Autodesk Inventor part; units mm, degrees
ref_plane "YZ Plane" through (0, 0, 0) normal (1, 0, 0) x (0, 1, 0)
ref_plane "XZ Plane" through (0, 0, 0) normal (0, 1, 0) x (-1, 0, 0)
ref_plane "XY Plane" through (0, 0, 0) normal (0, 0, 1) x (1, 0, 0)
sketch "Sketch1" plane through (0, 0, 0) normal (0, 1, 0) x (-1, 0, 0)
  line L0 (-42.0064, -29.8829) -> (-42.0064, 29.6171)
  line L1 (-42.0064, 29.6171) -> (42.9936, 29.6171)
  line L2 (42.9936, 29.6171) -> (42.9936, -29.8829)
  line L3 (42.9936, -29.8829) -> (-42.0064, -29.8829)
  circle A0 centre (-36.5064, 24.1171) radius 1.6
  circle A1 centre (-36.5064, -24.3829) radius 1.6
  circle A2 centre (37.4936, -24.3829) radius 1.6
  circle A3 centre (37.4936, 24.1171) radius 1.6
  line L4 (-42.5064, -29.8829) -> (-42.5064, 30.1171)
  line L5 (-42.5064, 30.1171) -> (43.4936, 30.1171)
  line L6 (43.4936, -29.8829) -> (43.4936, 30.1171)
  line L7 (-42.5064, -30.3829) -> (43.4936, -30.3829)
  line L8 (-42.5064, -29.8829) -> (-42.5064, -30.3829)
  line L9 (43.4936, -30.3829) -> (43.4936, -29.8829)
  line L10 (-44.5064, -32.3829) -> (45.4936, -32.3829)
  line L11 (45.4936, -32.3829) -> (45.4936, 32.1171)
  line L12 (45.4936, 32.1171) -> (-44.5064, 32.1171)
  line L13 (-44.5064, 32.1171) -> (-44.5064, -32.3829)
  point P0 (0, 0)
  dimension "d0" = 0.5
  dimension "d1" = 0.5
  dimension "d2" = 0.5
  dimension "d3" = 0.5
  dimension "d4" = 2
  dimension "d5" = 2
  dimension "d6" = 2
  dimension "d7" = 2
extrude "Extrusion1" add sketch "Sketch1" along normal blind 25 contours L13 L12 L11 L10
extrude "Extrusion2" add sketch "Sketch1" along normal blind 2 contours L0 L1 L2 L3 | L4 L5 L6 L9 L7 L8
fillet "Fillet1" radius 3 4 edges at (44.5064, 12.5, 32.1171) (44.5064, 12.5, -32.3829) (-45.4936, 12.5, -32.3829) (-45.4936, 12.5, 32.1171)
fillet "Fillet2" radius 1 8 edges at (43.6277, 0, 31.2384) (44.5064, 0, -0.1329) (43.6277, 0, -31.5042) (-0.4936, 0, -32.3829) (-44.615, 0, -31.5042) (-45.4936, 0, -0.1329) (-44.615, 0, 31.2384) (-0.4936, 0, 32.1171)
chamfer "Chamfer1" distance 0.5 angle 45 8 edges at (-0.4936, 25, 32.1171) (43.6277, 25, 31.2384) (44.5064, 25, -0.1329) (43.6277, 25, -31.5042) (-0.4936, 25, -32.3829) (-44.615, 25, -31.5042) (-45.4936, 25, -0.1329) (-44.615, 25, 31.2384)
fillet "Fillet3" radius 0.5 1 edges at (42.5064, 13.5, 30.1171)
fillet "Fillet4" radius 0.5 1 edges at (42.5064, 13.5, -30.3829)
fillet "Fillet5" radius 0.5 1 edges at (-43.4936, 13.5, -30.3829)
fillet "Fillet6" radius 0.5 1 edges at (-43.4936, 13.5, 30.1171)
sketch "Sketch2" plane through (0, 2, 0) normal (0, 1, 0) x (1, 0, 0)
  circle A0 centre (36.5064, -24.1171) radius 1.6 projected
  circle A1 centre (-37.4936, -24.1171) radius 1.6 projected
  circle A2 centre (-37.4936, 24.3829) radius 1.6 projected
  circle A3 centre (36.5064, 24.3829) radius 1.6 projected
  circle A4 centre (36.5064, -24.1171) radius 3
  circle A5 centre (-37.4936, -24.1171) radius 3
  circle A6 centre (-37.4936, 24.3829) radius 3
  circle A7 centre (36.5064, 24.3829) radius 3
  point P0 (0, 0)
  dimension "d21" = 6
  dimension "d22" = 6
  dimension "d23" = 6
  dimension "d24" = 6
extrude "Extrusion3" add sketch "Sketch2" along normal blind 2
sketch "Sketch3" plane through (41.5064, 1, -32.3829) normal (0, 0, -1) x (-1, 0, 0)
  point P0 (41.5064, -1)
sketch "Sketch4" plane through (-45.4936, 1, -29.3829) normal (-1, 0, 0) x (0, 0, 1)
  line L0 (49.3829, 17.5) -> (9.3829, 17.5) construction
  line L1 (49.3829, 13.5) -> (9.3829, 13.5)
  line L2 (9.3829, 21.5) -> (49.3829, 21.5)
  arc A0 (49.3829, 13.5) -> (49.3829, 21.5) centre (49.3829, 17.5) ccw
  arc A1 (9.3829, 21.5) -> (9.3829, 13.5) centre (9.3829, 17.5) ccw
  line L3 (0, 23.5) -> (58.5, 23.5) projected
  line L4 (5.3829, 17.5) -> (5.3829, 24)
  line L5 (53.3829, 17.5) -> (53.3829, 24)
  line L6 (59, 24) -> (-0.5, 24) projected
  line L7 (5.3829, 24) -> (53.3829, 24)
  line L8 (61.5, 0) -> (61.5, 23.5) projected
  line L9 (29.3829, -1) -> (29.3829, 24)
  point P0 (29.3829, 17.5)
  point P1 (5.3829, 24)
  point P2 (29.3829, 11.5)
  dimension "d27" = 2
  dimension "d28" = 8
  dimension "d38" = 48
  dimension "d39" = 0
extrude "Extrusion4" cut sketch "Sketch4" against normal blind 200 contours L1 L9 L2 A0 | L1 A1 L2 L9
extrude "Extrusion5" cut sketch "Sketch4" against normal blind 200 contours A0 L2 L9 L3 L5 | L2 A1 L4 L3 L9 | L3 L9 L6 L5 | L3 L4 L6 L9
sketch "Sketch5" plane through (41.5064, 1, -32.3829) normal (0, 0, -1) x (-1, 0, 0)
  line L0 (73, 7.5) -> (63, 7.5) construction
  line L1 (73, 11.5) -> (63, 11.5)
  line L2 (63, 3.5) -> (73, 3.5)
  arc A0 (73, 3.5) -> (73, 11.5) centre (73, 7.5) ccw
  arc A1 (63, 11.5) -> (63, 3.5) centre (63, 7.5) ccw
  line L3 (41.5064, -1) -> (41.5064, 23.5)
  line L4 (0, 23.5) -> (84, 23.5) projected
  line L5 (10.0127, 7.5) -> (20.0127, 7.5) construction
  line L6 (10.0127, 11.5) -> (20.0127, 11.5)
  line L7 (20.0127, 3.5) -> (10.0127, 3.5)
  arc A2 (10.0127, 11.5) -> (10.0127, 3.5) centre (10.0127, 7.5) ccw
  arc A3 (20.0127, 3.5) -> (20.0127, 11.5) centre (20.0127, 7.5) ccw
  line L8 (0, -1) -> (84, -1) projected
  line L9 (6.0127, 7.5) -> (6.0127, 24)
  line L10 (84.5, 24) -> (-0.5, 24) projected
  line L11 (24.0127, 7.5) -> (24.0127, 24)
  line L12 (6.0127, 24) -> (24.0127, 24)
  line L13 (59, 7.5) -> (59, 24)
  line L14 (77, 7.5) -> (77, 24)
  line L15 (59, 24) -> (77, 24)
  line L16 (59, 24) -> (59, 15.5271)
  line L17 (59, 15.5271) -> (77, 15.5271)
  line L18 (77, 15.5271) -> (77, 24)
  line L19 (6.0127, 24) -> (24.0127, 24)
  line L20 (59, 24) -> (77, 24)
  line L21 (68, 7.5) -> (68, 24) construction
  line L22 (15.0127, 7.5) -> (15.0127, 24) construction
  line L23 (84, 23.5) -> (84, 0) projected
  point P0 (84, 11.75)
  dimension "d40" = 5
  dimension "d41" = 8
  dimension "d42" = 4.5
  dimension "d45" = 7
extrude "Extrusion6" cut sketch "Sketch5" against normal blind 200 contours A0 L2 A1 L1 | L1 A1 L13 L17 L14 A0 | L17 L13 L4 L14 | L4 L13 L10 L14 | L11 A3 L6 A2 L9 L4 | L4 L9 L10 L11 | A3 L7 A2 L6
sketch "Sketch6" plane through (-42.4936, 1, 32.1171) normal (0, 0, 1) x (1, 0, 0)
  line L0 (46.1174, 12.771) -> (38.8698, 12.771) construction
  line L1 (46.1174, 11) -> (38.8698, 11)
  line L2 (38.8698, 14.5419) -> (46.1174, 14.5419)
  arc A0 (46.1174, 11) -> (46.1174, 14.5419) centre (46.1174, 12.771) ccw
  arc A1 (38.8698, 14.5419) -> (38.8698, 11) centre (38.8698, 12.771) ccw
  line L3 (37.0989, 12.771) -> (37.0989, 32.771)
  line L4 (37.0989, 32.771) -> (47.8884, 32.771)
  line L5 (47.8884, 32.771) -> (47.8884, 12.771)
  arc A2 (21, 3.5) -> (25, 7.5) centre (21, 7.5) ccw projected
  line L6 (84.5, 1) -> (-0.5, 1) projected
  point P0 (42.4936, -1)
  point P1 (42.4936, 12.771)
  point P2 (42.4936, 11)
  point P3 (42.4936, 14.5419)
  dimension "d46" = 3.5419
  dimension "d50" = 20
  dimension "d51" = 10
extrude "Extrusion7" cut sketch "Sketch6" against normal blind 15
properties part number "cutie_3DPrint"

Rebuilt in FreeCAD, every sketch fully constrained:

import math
import FreeCAD as App
import Part
import Sketcher

V = App.Vector


def edges_at(feature, points):
    """Names of the edges that pass closest to the given points."""
    edges = feature.Shape.Edges
    near = lambda p: min(range(len(edges)), key=lambda i: edges[i].distToShape(Part.Vertex(*p))[0])
    return sorted({f"Edge{near(p) + 1}" for p in points})


def add_polygon(sketch, points):
    """Adds a closed chain of lines whose ends are joined by coincident constraints."""
    first, n = sketch.GeometryCount, len(points)
    for a, b in zip(points, points[1:] + points[:1]):
        sketch.addGeometry(Part.LineSegment(App.Vector(*a, 0), App.Vector(*b, 0)), False)
    for i in range(n):
        sketch.addConstraint(Sketcher.Constraint("Coincident", first + i, 2, first + (i + 1) % n, 1))

doc = App.newDocument("Part")
body = doc.addObject("PartDesign::Body", "Body")

# Sketch on XZ plane
sketch1 = body.newObject("Sketcher::SketchObject", "Sketch")
sketch1.AttachmentSupport = (doc.getObject("XZ_Plane"), [""])
sketch1.MapMode = "FlatFace"
add_polygon(sketch1, [(45, 32), (45, -32), (-45, -32), (-45, 32)])  # lines 0-3
add_polygon(sketch1, [(43, -30), (43, 30), (-43, 30), (-43, -30)])  # lines 4-7
sketch1.addConstraint(Sketcher.Constraint("Vertical", 0))
sketch1.addConstraint(Sketcher.Constraint("Horizontal", 1))
sketch1.addConstraint(Sketcher.Constraint("Vertical", 2))
sketch1.addConstraint(Sketcher.Constraint("Horizontal", 3))
sketch1.addConstraint(Sketcher.Constraint("Vertical", 4))
sketch1.addConstraint(Sketcher.Constraint("Horizontal", 5))
sketch1.addConstraint(Sketcher.Constraint("Vertical", 6))
sketch1.addConstraint(Sketcher.Constraint("Horizontal", 7))
sketch1.addConstraint(Sketcher.Constraint("DistanceX", 4, 2, 3, 2, 2.0))
sketch1.addConstraint(Sketcher.Constraint("DistanceY", 4, 2, 3, 2, 2.0))
sketch1.addConstraint(Sketcher.Constraint("DistanceX", 2, 2, 5, 2, 2.0))
sketch1.addConstraint(Sketcher.Constraint("DistanceY", 1, 2, 6, 2, 2.0))
sketch1.addConstraint(Sketcher.Constraint("DistanceX", 1, 2, 1, 1, 90.0))
sketch1.addConstraint(Sketcher.Constraint("DistanceY", 0, 2, 0, 1, 64.5))
sketch1.addConstraint(Sketcher.Constraint("DistanceY", 0, 2, -1, 1, 32.383))
sketch1.addConstraint(Sketcher.Constraint("DistanceX", -1, 1, 0, 2, 44.5064))
pad1 = body.newObject("PartDesign::Pad", "Pad")
pad1.Profile = sketch1
pad1.Length = 25
pad1.Reversed = True

# Sketch on XZ plane
sketch2 = body.newObject("Sketcher::SketchObject", "Sketch001")
sketch2.AttachmentSupport = (doc.getObject("XZ_Plane"), [""])
sketch2.MapMode = "FlatFace"
add_polygon(sketch2, [(42.5, 30.1), (42.5, -30.4), (-43.5, -30.4), (-43.5, 30.1)])  # lines 0-3
sketch2.addGeometry(Part.Circle(V(36.5, -24.4, 0), V(0, 0, 1), 1.6), False)  # 4
sketch2.addGeometry(Part.Circle(V(-37.5, -24.4, 0), V(0, 0, 1), 1.6), False)  # 5
sketch2.addGeometry(Part.Circle(V(36.5, 24.1, 0), V(0, 0, 1), 1.6), False)  # 6
sketch2.addGeometry(Part.Circle(V(-37.5, 24.1, 0), V(0, 0, 1), 1.6), False)  # 7
sketch2.addConstraint(Sketcher.Constraint("Vertical", 0))
sketch2.addConstraint(Sketcher.Constraint("Horizontal", 1))
sketch2.addConstraint(Sketcher.Constraint("Vertical", 2))
sketch2.addConstraint(Sketcher.Constraint("Horizontal", 3))
sketch2.addConstraint(Sketcher.Constraint("Equal", 4, 5))
sketch2.addConstraint(Sketcher.Constraint("Equal", 5, 6))
sketch2.addConstraint(Sketcher.Constraint("Equal", 6, 7))
sketch2.addConstraint(Sketcher.Constraint("Horizontal", 4, 3, 5, 3))
sketch2.addConstraint(Sketcher.Constraint("Horizontal", 6, 3, 7, 3))
sketch2.addConstraint(Sketcher.Constraint("Vertical", 4, 3, 6, 3))
sketch2.addConstraint(Sketcher.Constraint("Vertical", 5, 3, 7, 3))
sketch2.addConstraint(Sketcher.Constraint("Diameter", 4, 3.2))
sketch2.addConstraint(Sketcher.Constraint("DistanceX", 1, 2, 1, 1, 86.0))
sketch2.addConstraint(Sketcher.Constraint("DistanceY", 0, 2, 0, 1, 60.5))
sketch2.addConstraint(Sketcher.Constraint("DistanceX", 5, 3, 4, 3, 74.0))
sketch2.addConstraint(Sketcher.Constraint("DistanceX", 4, 3, 0, 2, 6.0))
sketch2.addConstraint(Sketcher.Constraint("DistanceY", 0, 2, 4, 3, 6.0))
sketch2.addConstraint(Sketcher.Constraint("DistanceY", 7, 3, 2, 2, 6.0))
sketch2.addConstraint(Sketcher.Constraint("DistanceY", 4, 3, -1, 1, 24.383))
sketch2.addConstraint(Sketcher.Constraint("DistanceX", -1, 1, 4, 3, 36.5064))
pad2 = body.newObject("PartDesign::Pad", "Pad001")
pad2.Profile = sketch2
pad2.Length = 2
pad2.Reversed = True
doc.recompute()

fillet = body.newObject("PartDesign::Fillet", "Fillet")
fillet.Base = (pad2, edges_at(pad2, [
    (44.506, 12.5, 32.117),
    (44.506, 12.5, -32.383),
    (-45.494, 12.5, -32.383),
    (-45.494, 12.5, 32.117),
]))
fillet.Radius = 3
doc.recompute()

fillet2 = body.newObject("PartDesign::Fillet", "Fillet001")
fillet2.Base = (fillet, edges_at(fillet, [
    (43.628, 0, 31.238),
    (44.506, 0, -0.133),
    (43.628, 0, -31.504),
    (-0.494, 0, -32.383),
    (-44.615, 0, -31.504),
    (-45.494, 0, -0.133),
    (-44.615, 0, 31.238),
    (-0.494, 0, 32.117),
]))
fillet2.Radius = 1
doc.recompute()

chamfer = body.newObject("PartDesign::Chamfer", "Chamfer")
chamfer.Base = (fillet2, edges_at(fillet2, [
    (-0.494, 25, 32.117),
    (43.628, 25, 31.238),
    (44.506, 25, -0.133),
    (43.628, 25, -31.504),
    (-0.494, 25, -32.383),
    (-44.615, 25, -31.504),
    (-45.494, 25, -0.133),
    (-44.615, 25, 31.238),
]))
chamfer.Size = 0.5
doc.recompute()

fillet3 = body.newObject("PartDesign::Fillet", "Fillet002")
fillet3.Base = (chamfer, edges_at(chamfer, [(42.506, 13.5, 30.117)]))
fillet3.Radius = 0.5
doc.recompute()

fillet4 = body.newObject("PartDesign::Fillet", "Fillet003")
fillet4.Base = (fillet3, edges_at(fillet3, [(42.506, 13.5, -30.383)]))
fillet4.Radius = 0.5
doc.recompute()

fillet5 = body.newObject("PartDesign::Fillet", "Fillet004")
fillet5.Base = (fillet4, edges_at(fillet4, [(-43.494, 13.5, -30.383)]))
fillet5.Radius = 0.5
doc.recompute()

fillet6 = body.newObject("PartDesign::Fillet", "Fillet005")
fillet6.Base = (fillet5, edges_at(fillet5, [(-43.494, 13.5, 30.117)]))
fillet6.Radius = 0.5

# Sketch on XZ plane
sketch3 = body.newObject("Sketcher::SketchObject", "Sketch002")
sketch3.AttachmentSupport = (doc.getObject("XZ_Plane"), [""])
sketch3.MapMode = "FlatFace"
sketch3.AttachmentOffset = App.Placement(V(0, 0, -2), App.Rotation())
sketch3.addGeometry(Part.Circle(V(36.5, 24.1, 0), V(0, 0, 1), 3), False)
sketch3.addGeometry(Part.Circle(V(36.5, 24.1, 0), V(0, 0, 1), 1.6), False)
sketch3.addGeometry(Part.Circle(V(-37.5, 24.1, 0), V(0, 0, 1), 3), False)
sketch3.addGeometry(Part.Circle(V(-37.5, 24.1, 0), V(0, 0, 1), 1.6), False)
sketch3.addGeometry(Part.Circle(V(-37.5, -24.4, 0), V(0, 0, 1), 3), False)
sketch3.addGeometry(Part.Circle(V(-37.5, -24.4, 0), V(0, 0, 1), 1.6), False)
sketch3.addGeometry(Part.Circle(V(36.5, -24.4, 0), V(0, 0, 1), 3), False)
sketch3.addGeometry(Part.Circle(V(36.5, -24.4, 0), V(0, 0, 1), 1.6), False)
sketch3.addConstraint(Sketcher.Constraint("Coincident", 1, 3, 0, 3))
sketch3.addConstraint(Sketcher.Constraint("Coincident", 3, 3, 2, 3))
sketch3.addConstraint(Sketcher.Constraint("Coincident", 5, 3, 4, 3))
sketch3.addConstraint(Sketcher.Constraint("Coincident", 7, 3, 6, 3))
sketch3.addConstraint(Sketcher.Constraint("Equal", 0, 2))
sketch3.addConstraint(Sketcher.Constraint("Equal", 1, 3))
sketch3.addConstraint(Sketcher.Constraint("Equal", 2, 4))
sketch3.addConstraint(Sketcher.Constraint("Equal", 3, 5))
sketch3.addConstraint(Sketcher.Constraint("Equal", 4, 6))
sketch3.addConstraint(Sketcher.Constraint("Equal", 5, 7))
sketch3.addConstraint(Sketcher.Constraint("Horizontal", 1, 3, 2, 3))
sketch3.addConstraint(Sketcher.Constraint("Horizontal", 5, 3, 6, 3))
sketch3.addConstraint(Sketcher.Constraint("Vertical", 3, 3, 4, 3))
sketch3.addConstraint(Sketcher.Constraint("Vertical", 1, 3, 6, 3))
sketch3.addConstraint(Sketcher.Constraint("Diameter", 0, 6.0))
sketch3.addConstraint(Sketcher.Constraint("Diameter", 1, 3.2))
sketch3.addConstraint(Sketcher.Constraint("DistanceX", 2, 3, 0, 3, 74.0))
sketch3.addConstraint(Sketcher.Constraint("DistanceY", 4, 3, 2, 3, 48.5))
sketch3.addConstraint(Sketcher.Constraint("DistanceY", -1, 1, 0, 3, 24.117))
sketch3.addConstraint(Sketcher.Constraint("DistanceX", -1, 1, 0, 3, 36.5064))
pad3 = body.newObject("PartDesign::Pad", "Pad002")
pad3.Profile = sketch3
pad3.Length = 2
pad3.Reversed = True

# Sketch on YZ plane
sketch4 = body.newObject("Sketcher::SketchObject", "Sketch003")
sketch4.AttachmentSupport = (doc.getObject("YZ_Plane"), [""])
sketch4.MapMode = "FlatFace"
sketch4.AttachmentOffset = App.Placement(V(0, 0, -45.4936), App.Rotation())
sketch4.addGeometry(Part.ArcOfCircle(Part.Circle(V(18.5, 20, 0), V(0, 0, 1), 4), math.radians(0), math.radians(180)), False)
sketch4.addGeometry(Part.LineSegment(V(22.5, 20, 0), V(22.5, -20, 0)), False)
sketch4.addGeometry(Part.ArcOfCircle(Part.Circle(V(18.5, -20, 0), V(0, 0, 1), 4), math.radians(180), math.radians(360)), False)
sketch4.addGeometry(Part.LineSegment(V(14.5, -20, 0), V(14.5, 20, 0)), False)
sketch4.addConstraint(Sketcher.Constraint("Tangent", 0, 1, 1, 1))
sketch4.addConstraint(Sketcher.Constraint("Tangent", 1, 2, 2, 2))
sketch4.addConstraint(Sketcher.Constraint("Tangent", 2, 1, 3, 1))
sketch4.addConstraint(Sketcher.Constraint("Tangent", 3, 2, 0, 2))
sketch4.addConstraint(Sketcher.Constraint("Vertical", 1))
sketch4.addConstraint(Sketcher.Constraint("Vertical", 3))
sketch4.addConstraint(Sketcher.Constraint("Radius", 0, 4.0))
sketch4.addConstraint(Sketcher.Constraint("DistanceY", 1, 2, 1, 1, 40.0))
sketch4.addConstraint(Sketcher.Constraint("DistanceY", -1, 1, 0, 3, 20.0))
sketch4.addConstraint(Sketcher.Constraint("DistanceX", -1, 1, 0, 3, 18.5))
pocket1 = body.newObject("PartDesign::Pocket", "Pocket")
pocket1.Profile = sketch4
pocket1.Length = 200
pocket1.Reversed = True

# Sketch on YZ plane
sketch5 = body.newObject("Sketcher::SketchObject", "Sketch004")
sketch5.AttachmentSupport = (doc.getObject("YZ_Plane"), [""])
sketch5.MapMode = "FlatFace"
sketch5.AttachmentOffset = App.Placement(V(0, 0, -45.4936), App.Rotation())
sketch5.addGeometry(Part.ArcOfCircle(Part.Circle(V(18.5, 20, 0), V(0, 0, 1), 4), math.radians(0), math.radians(90)), False)
sketch5.addGeometry(Part.LineSegment(V(18.5, 24, 0), V(25, 24, 0)), False)
sketch5.addGeometry(Part.LineSegment(V(25, 24, 0), V(25, -24, 0)), False)
sketch5.addGeometry(Part.LineSegment(V(25, -24, 0), V(18.5, -24, 0)), False)
sketch5.addGeometry(Part.ArcOfCircle(Part.Circle(V(18.5, -20, 0), V(0, 0, 1), 4), math.radians(-90), math.radians(0)), False)
sketch5.addGeometry(Part.LineSegment(V(22.5, -20, 0), V(22.5, 20, 0)), False)
sketch5.addConstraint(Sketcher.Constraint("Tangent", 0, 2, 1, 1))
sketch5.addConstraint(Sketcher.Constraint("Coincident", 1, 2, 2, 1))
sketch5.addConstraint(Sketcher.Constraint("Coincident", 2, 2, 3, 1))
sketch5.addConstraint(Sketcher.Constraint("Tangent", 3, 2, 4, 1))
sketch5.addConstraint(Sketcher.Constraint("Tangent", 4, 2, 5, 1))
sketch5.addConstraint(Sketcher.Constraint("Tangent", 5, 2, 0, 1))
sketch5.addConstraint(Sketcher.Constraint("Horizontal", 1))
sketch5.addConstraint(Sketcher.Constraint("Vertical", 2))
sketch5.addConstraint(Sketcher.Constraint("Horizontal", 3))
sketch5.addConstraint(Sketcher.Constraint("Vertical", 5))
sketch5.addConstraint(Sketcher.Constraint("Equal", 0, 4))
sketch5.addConstraint(Sketcher.Constraint("Radius", 0, 4.0))
sketch5.addConstraint(Sketcher.Constraint("DistanceY", 2, 2, 2, 1, 48.0))
sketch5.addConstraint(Sketcher.Constraint("DistanceX", 1, 1, 1, 2, 6.5))
sketch5.addConstraint(Sketcher.Constraint("DistanceY", -1, 1, 0, 3, 20.0))
sketch5.addConstraint(Sketcher.Constraint("DistanceX", -1, 1, 1, 2, 25.0))
pocket2 = body.newObject("PartDesign::Pocket", "Pocket001")
pocket2.Profile = sketch5
pocket2.Length = 200
pocket2.Reversed = True

# Sketch on XY plane
sketch6 = body.newObject("Sketcher::SketchObject", "Sketch005")
sketch6.AttachmentSupport = (doc.getObject("XY_Plane"), [""])
sketch6.MapMode = "FlatFace"
sketch6.AttachmentOffset = App.Placement(V(0, 0, -32.3829), App.Rotation())
sketch6.addGeometry(Part.ArcOfCircle(Part.Circle(V(-31.5, 8.5, 0), V(0, 0, 1), 4), math.radians(180), math.radians(270)), False)
sketch6.addGeometry(Part.LineSegment(V(-35.5, 8.5, 0), V(-35.5, 25, 0)), False)
sketch6.addGeometry(Part.LineSegment(V(-35.5, 25, 0), V(-17.5, 25, 0)), False)
sketch6.addGeometry(Part.LineSegment(V(-17.5, 25, 0), V(-17.5, 8.5, 0)), False)
sketch6.addGeometry(Part.ArcOfCircle(Part.Circle(V(-21.5, 8.5, 0), V(0, 0, 1), 4), math.radians(-90), math.radians(0)), False)
sketch6.addGeometry(Part.LineSegment(V(-21.5, 4.5, 0), V(-31.5, 4.5, 0)), False)
sketch6.addGeometry(Part.LineSegment(V(17.5, 8.5, 0), V(17.5, 25, 0)), False)
sketch6.addGeometry(Part.LineSegment(V(17.5, 25, 0), V(35.5, 25, 0)), False)
sketch6.addGeometry(Part.LineSegment(V(35.5, 25, 0), V(35.5, 8.5, 0)), False)
sketch6.addGeometry(Part.ArcOfCircle(Part.Circle(V(31.5, 8.5, 0), V(0, 0, 1), 4), math.radians(-90), math.radians(0)), False)
sketch6.addGeometry(Part.LineSegment(V(31.5, 4.5, 0), V(21.5, 4.5, 0)), False)
sketch6.addGeometry(Part.ArcOfCircle(Part.Circle(V(21.5, 8.5, 0), V(0, 0, 1), 4), math.radians(180), math.radians(270)), False)
sketch6.addConstraint(Sketcher.Constraint("Tangent", 0, 1, 1, 1))
sketch6.addConstraint(Sketcher.Constraint("Coincident", 1, 2, 2, 1))
sketch6.addConstraint(Sketcher.Constraint("Coincident", 2, 2, 3, 1))
sketch6.addConstraint(Sketcher.Constraint("Tangent", 3, 2, 4, 2))
sketch6.addConstraint(Sketcher.Constraint("Tangent", 4, 1, 5, 1))
sketch6.addConstraint(Sketcher.Constraint("Tangent", 5, 2, 0, 2))
sketch6.addConstraint(Sketcher.Constraint("Coincident", 6, 2, 7, 1))
sketch6.addConstraint(Sketcher.Constraint("Coincident", 7, 2, 8, 1))
sketch6.addConstraint(Sketcher.Constraint("Tangent", 8, 2, 9, 2))
sketch6.addConstraint(Sketcher.Constraint("Tangent", 9, 1, 10, 1))
sketch6.addConstraint(Sketcher.Constraint("Tangent", 10, 2, 11, 2))
sketch6.addConstraint(Sketcher.Constraint("Tangent", 11, 1, 6, 1))
sketch6.addConstraint(Sketcher.Constraint("Vertical", 1))
sketch6.addConstraint(Sketcher.Constraint("Horizontal", 2))
sketch6.addConstraint(Sketcher.Constraint("Vertical", 3))
sketch6.addConstraint(Sketcher.Constraint("Horizontal", 5))
sketch6.addConstraint(Sketcher.Constraint("Vertical", 6))
sketch6.addConstraint(Sketcher.Constraint("Horizontal", 7))
sketch6.addConstraint(Sketcher.Constraint("Vertical", 8))
sketch6.addConstraint(Sketcher.Constraint("Horizontal", 10))
sketch6.addConstraint(Sketcher.Constraint("Equal", 0, 4))
sketch6.addConstraint(Sketcher.Constraint("Equal", 4, 9))
sketch6.addConstraint(Sketcher.Constraint("Equal", 9, 11))
sketch6.addConstraint(Sketcher.Constraint("Symmetric", 0, 3, 9, 3, -2))
sketch6.addConstraint(Sketcher.Constraint("Symmetric", 2, 2, 6, 2, -2))
sketch6.addConstraint(Sketcher.Constraint("Radius", 0, 4.0))
sketch6.addConstraint(Sketcher.Constraint("DistanceY", -1, 1, 4, 1, 4.5))
sketch6.addConstraint(Sketcher.Constraint("DistanceX", 2, 1, 2, 2, 18.0))
sketch6.addConstraint(Sketcher.Constraint("DistanceY", 1, 1, 1, 2, 16.5))
sketch6.addConstraint(Sketcher.Constraint("DistanceX", 0, 3, -1, 1, 31.4936))
pocket3 = body.newObject("PartDesign::Pocket", "Pocket002")
pocket3.Profile = sketch6
pocket3.Length = 200
pocket3.Reversed = True

# Sketch on XY plane
sketch7 = body.newObject("Sketcher::SketchObject", "Sketch006")
sketch7.AttachmentSupport = (doc.getObject("XY_Plane"), [""])
sketch7.MapMode = "FlatFace"
sketch7.AttachmentOffset = App.Placement(V(0, 0, 32.1171), App.Rotation())
sketch7.addGeometry(Part.LineSegment(V(-3.6, 12, 0), V(3.6, 12, 0)), False)
sketch7.addGeometry(Part.ArcOfCircle(Part.Circle(V(3.6, 13.8, 0), V(0, 0, 1), 1.8), math.radians(-90), math.radians(0)), False)
sketch7.addGeometry(Part.LineSegment(V(5.4, 13.8, 0), V(5.4, 33.8, 0)), False)
sketch7.addGeometry(Part.LineSegment(V(5.4, 33.8, 0), V(-5.4, 33.8, 0)), False)
sketch7.addGeometry(Part.LineSegment(V(-5.4, 33.8, 0), V(-5.4, 13.8, 0)), False)
sketch7.addGeometry(Part.ArcOfCircle(Part.Circle(V(-3.6, 13.8, 0), V(0, 0, 1), 1.8), math.radians(180), math.radians(270)), False)
sketch7.addConstraint(Sketcher.Constraint("Tangent", 0, 2, 1, 1))
sketch7.addConstraint(Sketcher.Constraint("Tangent", 1, 2, 2, 1))
sketch7.addConstraint(Sketcher.Constraint("Coincident", 2, 2, 3, 1))
sketch7.addConstraint(Sketcher.Constraint("Coincident", 3, 2, 4, 1))
sketch7.addConstraint(Sketcher.Constraint("Tangent", 4, 2, 5, 1))
sketch7.addConstraint(Sketcher.Constraint("Tangent", 5, 2, 0, 1))
sketch7.addConstraint(Sketcher.Constraint("Horizontal", 0))
sketch7.addConstraint(Sketcher.Constraint("Vertical", 2))
sketch7.addConstraint(Sketcher.Constraint("Horizontal", 3))
sketch7.addConstraint(Sketcher.Constraint("Vertical", 4))
sketch7.addConstraint(Sketcher.Constraint("Equal", 1, 5))
sketch7.addConstraint(Sketcher.Constraint("DistanceY", 2, 1, 2, 2, 20.0))
sketch7.addConstraint(Sketcher.Constraint("Radius", 1, 1.771))
sketch7.addConstraint(Sketcher.Constraint("DistanceY", -1, 1, 0, 2, 12.0))
sketch7.addConstraint(Sketcher.Constraint("DistanceX", 0, 1, 0, 2, 7.2476))
sketch7.addConstraint(Sketcher.Constraint("DistanceX", -1, 1, 1, 3, 3.6238))
pocket4 = body.newObject("PartDesign::Pocket", "Pocket003")
pocket4.Profile = sketch7
pocket4.Length = 15

doc.recompute()
